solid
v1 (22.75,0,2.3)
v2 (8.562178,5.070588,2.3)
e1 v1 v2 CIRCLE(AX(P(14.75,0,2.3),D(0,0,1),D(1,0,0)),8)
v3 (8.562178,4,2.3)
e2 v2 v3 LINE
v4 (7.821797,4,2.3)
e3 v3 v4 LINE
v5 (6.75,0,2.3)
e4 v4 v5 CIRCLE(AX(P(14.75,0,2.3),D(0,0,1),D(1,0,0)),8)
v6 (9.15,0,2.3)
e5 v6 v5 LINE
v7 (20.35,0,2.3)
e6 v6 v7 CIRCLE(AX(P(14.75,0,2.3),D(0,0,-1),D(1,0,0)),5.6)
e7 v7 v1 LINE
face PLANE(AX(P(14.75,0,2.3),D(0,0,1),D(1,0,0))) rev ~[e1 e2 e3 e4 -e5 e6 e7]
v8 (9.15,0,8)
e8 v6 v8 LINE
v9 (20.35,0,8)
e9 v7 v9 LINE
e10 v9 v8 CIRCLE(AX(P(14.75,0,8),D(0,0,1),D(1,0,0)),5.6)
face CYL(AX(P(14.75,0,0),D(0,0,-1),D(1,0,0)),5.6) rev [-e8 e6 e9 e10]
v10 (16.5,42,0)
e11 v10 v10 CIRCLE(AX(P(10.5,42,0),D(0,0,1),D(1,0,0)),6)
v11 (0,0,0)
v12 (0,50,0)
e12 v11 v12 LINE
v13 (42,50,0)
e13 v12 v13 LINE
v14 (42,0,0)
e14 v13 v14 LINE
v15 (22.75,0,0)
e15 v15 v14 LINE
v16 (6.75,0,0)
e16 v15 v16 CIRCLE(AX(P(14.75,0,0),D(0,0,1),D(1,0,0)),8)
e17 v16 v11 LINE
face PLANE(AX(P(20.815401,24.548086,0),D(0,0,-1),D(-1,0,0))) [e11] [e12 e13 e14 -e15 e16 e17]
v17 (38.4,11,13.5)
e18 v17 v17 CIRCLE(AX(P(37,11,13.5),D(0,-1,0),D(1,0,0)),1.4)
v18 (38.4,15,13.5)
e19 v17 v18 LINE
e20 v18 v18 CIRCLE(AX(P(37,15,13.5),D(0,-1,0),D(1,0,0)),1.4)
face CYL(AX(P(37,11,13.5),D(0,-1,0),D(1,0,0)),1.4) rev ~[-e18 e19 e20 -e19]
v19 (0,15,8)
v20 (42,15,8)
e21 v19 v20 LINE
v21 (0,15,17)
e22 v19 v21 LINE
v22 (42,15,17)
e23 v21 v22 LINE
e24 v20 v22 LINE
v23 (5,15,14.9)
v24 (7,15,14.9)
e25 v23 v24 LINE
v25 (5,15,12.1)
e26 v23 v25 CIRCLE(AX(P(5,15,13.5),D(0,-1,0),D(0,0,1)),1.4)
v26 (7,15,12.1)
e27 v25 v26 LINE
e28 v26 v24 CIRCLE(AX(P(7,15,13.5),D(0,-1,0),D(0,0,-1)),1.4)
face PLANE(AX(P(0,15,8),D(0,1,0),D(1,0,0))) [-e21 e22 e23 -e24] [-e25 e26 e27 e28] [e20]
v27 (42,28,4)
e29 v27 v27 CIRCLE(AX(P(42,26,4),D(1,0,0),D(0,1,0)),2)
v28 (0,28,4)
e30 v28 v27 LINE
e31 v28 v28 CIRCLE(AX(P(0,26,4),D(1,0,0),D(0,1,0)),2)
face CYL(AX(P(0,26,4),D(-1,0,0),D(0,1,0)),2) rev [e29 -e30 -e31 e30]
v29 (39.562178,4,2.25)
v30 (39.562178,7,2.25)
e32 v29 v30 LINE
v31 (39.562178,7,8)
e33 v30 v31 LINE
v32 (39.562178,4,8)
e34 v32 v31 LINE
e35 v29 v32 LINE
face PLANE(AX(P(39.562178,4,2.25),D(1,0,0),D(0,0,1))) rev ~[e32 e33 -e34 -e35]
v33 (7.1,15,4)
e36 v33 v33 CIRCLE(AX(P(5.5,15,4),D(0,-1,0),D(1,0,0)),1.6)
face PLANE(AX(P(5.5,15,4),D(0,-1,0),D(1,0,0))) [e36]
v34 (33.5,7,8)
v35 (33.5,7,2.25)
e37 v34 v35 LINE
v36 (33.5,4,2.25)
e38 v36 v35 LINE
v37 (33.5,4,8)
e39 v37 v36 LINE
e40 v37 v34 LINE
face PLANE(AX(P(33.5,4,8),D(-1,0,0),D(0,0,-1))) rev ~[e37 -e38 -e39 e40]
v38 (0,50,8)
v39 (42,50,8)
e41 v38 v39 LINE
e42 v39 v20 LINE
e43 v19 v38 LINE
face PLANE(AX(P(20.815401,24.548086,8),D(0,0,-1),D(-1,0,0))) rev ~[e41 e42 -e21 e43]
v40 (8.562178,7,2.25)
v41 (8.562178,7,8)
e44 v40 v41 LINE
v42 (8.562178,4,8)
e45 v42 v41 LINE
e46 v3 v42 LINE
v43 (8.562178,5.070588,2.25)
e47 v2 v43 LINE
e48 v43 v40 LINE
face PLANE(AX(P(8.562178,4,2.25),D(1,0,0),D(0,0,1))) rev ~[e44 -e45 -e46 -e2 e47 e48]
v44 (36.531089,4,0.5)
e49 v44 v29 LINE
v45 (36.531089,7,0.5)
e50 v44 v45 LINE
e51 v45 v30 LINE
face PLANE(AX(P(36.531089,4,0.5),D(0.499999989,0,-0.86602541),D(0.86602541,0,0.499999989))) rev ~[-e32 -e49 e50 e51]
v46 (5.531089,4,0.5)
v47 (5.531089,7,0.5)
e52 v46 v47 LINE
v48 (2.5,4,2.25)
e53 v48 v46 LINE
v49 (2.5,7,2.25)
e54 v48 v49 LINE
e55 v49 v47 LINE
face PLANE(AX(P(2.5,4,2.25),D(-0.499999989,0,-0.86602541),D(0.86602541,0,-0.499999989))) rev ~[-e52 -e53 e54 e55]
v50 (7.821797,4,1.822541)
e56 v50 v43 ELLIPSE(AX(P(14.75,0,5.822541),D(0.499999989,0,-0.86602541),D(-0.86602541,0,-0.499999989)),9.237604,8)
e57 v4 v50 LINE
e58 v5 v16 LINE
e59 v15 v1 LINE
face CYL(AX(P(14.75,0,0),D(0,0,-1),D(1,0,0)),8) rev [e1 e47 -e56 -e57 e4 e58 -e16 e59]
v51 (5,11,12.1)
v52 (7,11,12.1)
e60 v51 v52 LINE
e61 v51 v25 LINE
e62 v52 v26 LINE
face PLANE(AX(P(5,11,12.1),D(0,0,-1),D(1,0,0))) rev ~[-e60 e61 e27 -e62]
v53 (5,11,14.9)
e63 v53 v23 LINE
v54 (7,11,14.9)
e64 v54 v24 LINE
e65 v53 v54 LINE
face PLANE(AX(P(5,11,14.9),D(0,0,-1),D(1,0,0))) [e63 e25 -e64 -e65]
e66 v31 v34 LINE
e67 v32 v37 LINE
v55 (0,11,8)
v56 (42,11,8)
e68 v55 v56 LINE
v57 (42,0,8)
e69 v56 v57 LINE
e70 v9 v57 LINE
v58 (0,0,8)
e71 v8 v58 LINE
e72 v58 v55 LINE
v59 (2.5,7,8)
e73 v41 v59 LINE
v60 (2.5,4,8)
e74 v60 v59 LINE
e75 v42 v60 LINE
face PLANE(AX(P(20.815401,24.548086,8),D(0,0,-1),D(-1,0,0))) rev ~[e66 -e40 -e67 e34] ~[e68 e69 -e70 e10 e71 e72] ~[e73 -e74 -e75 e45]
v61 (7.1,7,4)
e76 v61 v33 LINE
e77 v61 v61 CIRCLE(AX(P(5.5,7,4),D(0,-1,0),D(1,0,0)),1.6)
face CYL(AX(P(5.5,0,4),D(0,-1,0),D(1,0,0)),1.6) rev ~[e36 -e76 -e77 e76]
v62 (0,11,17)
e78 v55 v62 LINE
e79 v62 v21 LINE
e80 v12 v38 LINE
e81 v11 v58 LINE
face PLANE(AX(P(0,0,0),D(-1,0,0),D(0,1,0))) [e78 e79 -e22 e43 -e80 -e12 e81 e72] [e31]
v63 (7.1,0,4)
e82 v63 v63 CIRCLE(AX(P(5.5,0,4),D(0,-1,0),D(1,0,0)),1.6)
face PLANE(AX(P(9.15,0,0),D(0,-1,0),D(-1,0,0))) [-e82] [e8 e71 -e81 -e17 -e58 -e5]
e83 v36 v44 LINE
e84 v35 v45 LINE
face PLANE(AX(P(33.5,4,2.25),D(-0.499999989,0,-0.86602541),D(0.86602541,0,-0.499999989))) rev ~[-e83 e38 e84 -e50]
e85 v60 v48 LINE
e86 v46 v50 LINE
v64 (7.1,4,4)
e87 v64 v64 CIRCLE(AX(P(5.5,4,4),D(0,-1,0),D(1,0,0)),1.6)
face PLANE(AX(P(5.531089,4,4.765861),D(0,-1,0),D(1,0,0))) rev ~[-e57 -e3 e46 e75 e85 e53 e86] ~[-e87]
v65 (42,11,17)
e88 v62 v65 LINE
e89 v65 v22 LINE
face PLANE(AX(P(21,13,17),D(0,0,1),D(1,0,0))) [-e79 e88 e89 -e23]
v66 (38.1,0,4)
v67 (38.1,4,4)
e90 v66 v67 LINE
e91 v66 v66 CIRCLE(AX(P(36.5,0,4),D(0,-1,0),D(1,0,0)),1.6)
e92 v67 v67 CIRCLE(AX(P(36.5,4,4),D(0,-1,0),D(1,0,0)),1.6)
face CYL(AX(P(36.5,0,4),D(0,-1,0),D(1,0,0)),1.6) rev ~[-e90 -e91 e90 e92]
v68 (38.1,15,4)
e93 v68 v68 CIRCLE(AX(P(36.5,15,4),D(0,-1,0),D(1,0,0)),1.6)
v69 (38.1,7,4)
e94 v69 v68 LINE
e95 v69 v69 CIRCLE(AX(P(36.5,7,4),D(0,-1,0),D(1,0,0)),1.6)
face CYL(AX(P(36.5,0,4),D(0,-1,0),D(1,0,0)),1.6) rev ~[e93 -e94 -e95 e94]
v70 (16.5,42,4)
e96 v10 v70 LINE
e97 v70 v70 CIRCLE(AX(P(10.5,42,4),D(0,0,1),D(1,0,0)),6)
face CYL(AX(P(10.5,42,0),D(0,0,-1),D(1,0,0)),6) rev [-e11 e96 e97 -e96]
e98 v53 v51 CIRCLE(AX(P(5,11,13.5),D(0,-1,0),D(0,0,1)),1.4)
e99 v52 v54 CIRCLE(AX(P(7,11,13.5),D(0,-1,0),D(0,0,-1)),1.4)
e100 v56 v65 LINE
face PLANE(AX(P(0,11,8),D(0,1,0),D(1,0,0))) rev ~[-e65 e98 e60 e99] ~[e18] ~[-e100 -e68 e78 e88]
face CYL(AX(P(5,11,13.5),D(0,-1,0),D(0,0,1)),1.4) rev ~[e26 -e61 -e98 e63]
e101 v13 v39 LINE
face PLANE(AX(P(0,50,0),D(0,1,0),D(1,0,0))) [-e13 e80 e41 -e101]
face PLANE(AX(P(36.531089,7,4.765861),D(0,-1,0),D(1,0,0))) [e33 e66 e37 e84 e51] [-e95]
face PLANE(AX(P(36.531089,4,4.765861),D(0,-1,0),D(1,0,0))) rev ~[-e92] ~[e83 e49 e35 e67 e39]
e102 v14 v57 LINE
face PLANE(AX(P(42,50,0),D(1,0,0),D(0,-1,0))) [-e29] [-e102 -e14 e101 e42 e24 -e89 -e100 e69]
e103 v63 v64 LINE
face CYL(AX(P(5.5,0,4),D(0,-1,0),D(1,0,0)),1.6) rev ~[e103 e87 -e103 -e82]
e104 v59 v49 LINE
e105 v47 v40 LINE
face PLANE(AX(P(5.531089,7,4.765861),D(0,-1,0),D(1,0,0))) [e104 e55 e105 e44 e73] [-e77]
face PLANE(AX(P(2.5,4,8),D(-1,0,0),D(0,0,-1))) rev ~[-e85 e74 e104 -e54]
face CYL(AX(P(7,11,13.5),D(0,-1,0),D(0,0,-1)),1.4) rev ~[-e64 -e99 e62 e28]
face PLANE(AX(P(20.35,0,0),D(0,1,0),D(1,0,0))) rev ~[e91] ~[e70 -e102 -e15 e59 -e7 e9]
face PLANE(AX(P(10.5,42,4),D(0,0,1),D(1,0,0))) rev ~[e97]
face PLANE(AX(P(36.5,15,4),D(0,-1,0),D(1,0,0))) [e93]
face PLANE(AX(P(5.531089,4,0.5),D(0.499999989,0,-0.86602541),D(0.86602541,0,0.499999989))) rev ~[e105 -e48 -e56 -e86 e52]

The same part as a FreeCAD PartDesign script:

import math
import FreeCAD as App
import Part
import Sketcher
from FreeCAD import Vector
Q = App.Units.Quantity

doc = App.newDocument("Part")
body = doc.addObject("PartDesign::Body", "Body")
body.AllowCompound = True

sketch1 = body.newObject("Sketcher::SketchObject", "Sketch")
sketch1.AttachmentSupport = (doc.getObject("XZ_Plane"), [""])
sketch1.MapMode = "FlatFace"
sketch1.AttachmentOffset = App.Placement(Vector(0, 0, -4), App.Rotation())
sketch1.addGeometry([
    Part.LineSegment(Vector(5.531089, 0.5, 0), Vector(8.562178, 2.25, 0)),
    Part.LineSegment(Vector(8.562178, 2.25, 0), Vector(8.562178, 8, 0)),
    Part.LineSegment(Vector(8.562178, 8, 0), Vector(2.5, 8, 0)),
    Part.LineSegment(Vector(2.5, 8, 0), Vector(2.5, 2.25, 0)),
    Part.LineSegment(Vector(2.5, 2.25, 0), Vector(5.531089, 0.5, 0)),
    Part.LineSegment(Vector(39.562178, 2.25, 0), Vector(39.562178, 8, 0)),
    Part.LineSegment(Vector(39.562178, 8, 0), Vector(33.5, 8, 0)),
    Part.LineSegment(Vector(33.5, 8, 0), Vector(33.5, 2.25, 0)),
    Part.LineSegment(Vector(33.5, 2.25, 0), Vector(36.531089, 0.5, 0)),
    Part.LineSegment(Vector(36.531089, 0.5, 0), Vector(39.562178, 2.25, 0)),
], False)
sketch1.addConstraint([
    Sketcher.Constraint("Coincident", 0, 2, 1, 1),
    Sketcher.Constraint("Coincident", 1, 2, 2, 1),
    Sketcher.Constraint("Coincident", 2, 2, 3, 1),
    Sketcher.Constraint("Coincident", 3, 2, 4, 1),
    Sketcher.Constraint("Coincident", 4, 2, 0, 1),
    Sketcher.Constraint("Coincident", 5, 2, 6, 1),
    Sketcher.Constraint("Coincident", 6, 2, 7, 1),
    Sketcher.Constraint("Coincident", 7, 2, 8, 1),
    Sketcher.Constraint("Coincident", 8, 2, 9, 1),
    Sketcher.Constraint("Coincident", 9, 2, 5, 1),
    Sketcher.Constraint("Vertical", 1),
    Sketcher.Constraint("Horizontal", 2),
    Sketcher.Constraint("Vertical", 3),
    Sketcher.Constraint("Vertical", 5),
    Sketcher.Constraint("Horizontal", 6),
    Sketcher.Constraint("Vertical", 7),
    Sketcher.Constraint("Parallel", 4, 8),
    Sketcher.Constraint("Parallel", 0, 9),
    Sketcher.Constraint("Horizontal", 0, 2, 3, 2),
    Sketcher.Constraint("Horizontal", 2, 2, 5, 2),
    Sketcher.Constraint("Horizontal", 3, 2, 7, 2),
    Sketcher.Constraint("Horizontal", 4, 2, 8, 2),
    Sketcher.Constraint("Horizontal", 7, 2, 9, 2),
    Sketcher.Constraint("Equal", 0, 4),
    Sketcher.Constraint("Angle", 0, Q("29.999999 deg")),
    Sketcher.Constraint("DistanceY", -1, 1, 1, 2, Q("8 mm")),
    Sketcher.Constraint("DistanceX", 1, 2, 5, 2, Q("31 mm")),
    Sketcher.Constraint("Distance", 0, Q("3.5 mm")),
    Sketcher.Constraint("DistanceY", 1, 1, 1, 2, Q("5.75 mm")),
    Sketcher.Constraint("DistanceX", -1, 1, 2, 2, Q("2.5 mm")),
])
pad1 = body.newObject("PartDesign::Pad", "Pad")
pad1.Profile = sketch1
pad1.Length = 3
pad1.Reversed = True
body2 = doc.addObject("PartDesign::Body", "Body001")

sketch2 = body2.newObject("Sketcher::SketchObject", "Sketch001")
sketch2.AttachmentSupport = (doc.getObject("XY_Plane001"), [""])
sketch2.MapMode = "FlatFace"
sketch2.addGeometry(Part.Circle(Vector(14.75, 0, 0), Vector(0, 0, 1), 8), False)
sketch2.addConstraint([
    Sketcher.Constraint("PointOnObject", 0, 3, -1),
    Sketcher.Constraint("Diameter", 0, Q("16 mm")),
    Sketcher.Constraint("DistanceX", -1, 1, 0, 3, Q("14.75 mm")),
])
pad2 = body2.newObject("PartDesign::Pad", "Pad001")
pad2.Profile = sketch2
pad2.Length = 2.3
body3 = doc.addObject("PartDesign::Body", "Body002")

sketch3 = body3.newObject("Sketcher::SketchObject", "Sketch002")
sketch3.AttachmentSupport = (doc.getObject("XY_Plane002"), [""])
sketch3.MapMode = "FlatFace"
sketch3.addGeometry(Part.Circle(Vector(10.5, 42, 0), Vector(0, 0, 1), 6), False)
sketch3.addConstraint([
    Sketcher.Constraint("Diameter", 0, Q("12 mm")),
    Sketcher.Constraint("DistanceY", -1, 1, 0, 3, Q("42 mm")),
    Sketcher.Constraint("DistanceX", -1, 1, 0, 3, Q("10.5 mm")),
])
pad3 = body3.newObject("PartDesign::Pad", "Pad002")
pad3.Profile = sketch3
pad3.Length = 4
body4 = doc.addObject("PartDesign::Body", "Body003")
body4.AllowCompound = True

sketch4 = body4.newObject("Sketcher::SketchObject", "Sketch003")
sketch4.AttachmentSupport = (doc.getObject("XZ_Plane003"), [""])
sketch4.MapMode = "FlatFace"
sketch4.addGeometry([
    Part.Circle(Vector(5.5, 4, 0), Vector(0, 0, 1), 1.6),
    Part.Circle(Vector(36.5, 4, 0), Vector(0, 0, 1), 1.6),
], False)
sketch4.addConstraint([
    Sketcher.Constraint("Equal", 0, 1),
    Sketcher.Constraint("Horizontal", 0, 3, 1, 3),
    Sketcher.Constraint("Diameter", 0, Q("3.2 mm")),
    Sketcher.Constraint("DistanceY", -1, 1, 0, 3, Q("4 mm")),
    Sketcher.Constraint("DistanceX", 0, 3, 1, 3, Q("31 mm")),
    Sketcher.Constraint("DistanceX", -1, 1, 0, 3, Q("5.5 mm")),
])
pad4 = body4.newObject("PartDesign::Pad", "Pad003")
pad4.Profile = sketch4
pad4.Length = 15
pad4.Reversed = True
body5 = doc.addObject("PartDesign::Body", "Body004")
body5.AllowCompound = True

sketch5 = body5.newObject("Sketcher::SketchObject", "Sketch004")
sketch5.AttachmentSupport = (doc.getObject("XZ_Plane004"), [""])
sketch5.MapMode = "FlatFace"
sketch5.AttachmentOffset = App.Placement(Vector(0, 0, -11), App.Rotation())
sketch5.addGeometry([
    Part.Circle(Vector(37, 13.5, 0), Vector(0, 0, 1), 1.4),
    Part.ArcOfCircle(Part.Circle(Vector(5, 13.5, 0), Vector(0, 0, 1), 1.4), math.radians(90), math.radians(270)),
    Part.LineSegment(Vector(5, 12.1, 0), Vector(7, 12.1, 0)),
    Part.ArcOfCircle(Part.Circle(Vector(7, 13.5, 0), Vector(0, 0, 1), 1.4), math.radians(-90), math.radians(90)),
    Part.LineSegment(Vector(7, 14.9, 0), Vector(5, 14.9, 0)),
], False)
sketch5.addConstraint([
    Sketcher.Constraint("Tangent", 1, 2, 2, 1),
    Sketcher.Constraint("Tangent", 2, 2, 3, 1),
    Sketcher.Constraint("Tangent", 3, 2, 4, 1),
    Sketcher.Constraint("Tangent", 4, 2, 1, 1),
    Sketcher.Constraint("Horizontal", 2),
    Sketcher.Constraint("Horizontal", 4),
    Sketcher.Constraint("Equal", 0, 1),
    Sketcher.Constraint("Horizontal", 0, 3, 1, 3),
    Sketcher.Constraint("Diameter", 0, Q("2.8 mm")),
    Sketcher.Constraint("DistanceX", 2, 1, 2, 2, Q("2 mm")),
    Sketcher.Constraint("DistanceX", -1, 1, 0, 3, Q("37 mm")),
    Sketcher.Constraint("DistanceX", -1, 1, 1, 3, Q("5 mm")),
    Sketcher.Constraint("DistanceY", -1, 1, 0, 3, Q("13.5 mm")),
])
pad5 = body5.newObject("PartDesign::Pad", "Pad004")
pad5.Profile = sketch5
pad5.Length = 4
pad5.Reversed = True
doc.recompute()

boolean = body5.newObject("PartDesign::Boolean", "Boolean")
boolean.Type = "Fuse"
boolean.addObjects([body])
doc.recompute()

boolean2 = body5.newObject("PartDesign::Boolean", "Boolean001")
boolean2.Type = "Fuse"
boolean2.addObjects([body2])
doc.recompute()

boolean3 = body5.newObject("PartDesign::Boolean", "Boolean002")
boolean3.Type = "Fuse"
boolean3.addObjects([body3])
doc.recompute()

boolean4 = body5.newObject("PartDesign::Boolean", "Boolean003")
boolean4.Type = "Fuse"
boolean4.addObjects([body4])
body6 = doc.addObject("PartDesign::Body", "Body005")

sketch6 = body6.newObject("Sketcher::SketchObject", "Sketch005")
sketch6.AttachmentSupport = (doc.getObject("XY_Plane005"), [""])
sketch6.MapMode = "FlatFace"
sketch6.AttachmentOffset = App.Placement(Vector(0, 0, 8), App.Rotation())
sketch6.addGeometry([
    Part.LineSegment(Vector(0, 15, 0), Vector(0, 11, 0)),
    Part.LineSegment(Vector(0, 11, 0), Vector(42, 11, 0)),
    Part.LineSegment(Vector(42, 11, 0), Vector(42, 15, 0)),
    Part.LineSegment(Vector(42, 15, 0), Vector(0, 15, 0)),
], False)
sketch6.addConstraint([
    Sketcher.Constraint("Coincident", 0, 2, 1, 1),
    Sketcher.Constraint("Coincident", 1, 2, 2, 1),
    Sketcher.Constraint("Coincident", 2, 2, 3, 1),
    Sketcher.Constraint("Coincident", 3, 2, 0, 1),
    Sketcher.Constraint("Vertical", 0),
    Sketcher.Constraint("Horizontal", 1),
    Sketcher.Constraint("Vertical", 2),
    Sketcher.Constraint("Horizontal", 3),
    Sketcher.Constraint("PointOnObject", 0, 2, -2),
    Sketcher.Constraint("DistanceX", 1, 1, 1, 2, Q("42 mm")),
    Sketcher.Constraint("DistanceY", 0, 2, 0, 1, Q("4 mm")),
    Sketcher.Constraint("DistanceY", -1, 1, 0, 2, Q("11 mm")),
])
pad6 = body6.newObject("PartDesign::Pad", "Pad005")
pad6.Profile = sketch6
pad6.Length = 9
body7 = doc.addObject("PartDesign::Body", "Body006")

sketch7 = body7.newObject("Sketcher::SketchObject", "Sketch006")
sketch7.AttachmentSupport = (doc.getObject("YZ_Plane006"), [""])
sketch7.MapMode = "FlatFace"
sketch7.addGeometry(Part.Circle(Vector(26, 4, 0), Vector(0, 0, 1), 2), False)
sketch7.addConstraint([
    Sketcher.Constraint("Diameter", 0, Q("4 mm")),
    Sketcher.Constraint("DistanceX", -1, 1, 0, 3, Q("26 mm")),
    Sketcher.Constraint("DistanceY", -1, 1, 0, 3, Q("4 mm")),
])
pad7 = body7.newObject("PartDesign::Pad", "Pad006")
pad7.Profile = sketch7
pad7.Length = 42
body8 = doc.addObject("PartDesign::Body", "Body007")

sketch8 = body8.newObject("Sketcher::SketchObject", "Sketch007")
sketch8.AttachmentSupport = (doc.getObject("XY_Plane007"), [""])
sketch8.MapMode = "FlatFace"
sketch8.addGeometry([
    Part.LineSegment(Vector(42, 50, 0), Vector(0, 50, 0)),
    Part.LineSegment(Vector(0, 50, 0), Vector(0, 0, 0)),
    Part.LineSegment(Vector(0, 0, 0), Vector(9.15, 0, 0)),
    Part.ArcOfCircle(Part.Circle(Vector(14.75, 0, 0), Vector(0, 0, 1), 5.6), math.radians(0), math.radians(180)),
    Part.LineSegment(Vector(20.35, 0, 0), Vector(42, 0, 0)),
    Part.LineSegment(Vector(42, 0, 0), Vector(42, 50, 0)),
], False)
sketch8.addConstraint([
    Sketcher.Constraint("Coincident", 0, 2, 1, 1),
    Sketcher.Constraint("Coincident", 1, 2, 2, 1),
    Sketcher.Constraint("Coincident", 2, 2, 3, 2),
    Sketcher.Constraint("Coincident", 3, 1, 4, 1),
    Sketcher.Constraint("Coincident", 4, 2, 5, 1),
    Sketcher.Constraint("Coincident", 5, 2, 0, 1),
    Sketcher.Constraint("Horizontal", 0),
    Sketcher.Constraint("Vertical", 1),
    Sketcher.Constraint("Horizontal", 2),
    Sketcher.Constraint("Horizontal", 4),
    Sketcher.Constraint("Vertical", 5),
    Sketcher.Constraint("Coincident", 1, 2, -1, 1),
    Sketcher.Constraint("PointOnObject", 3, 3, -1),
    Sketcher.Constraint("PointOnObject", 3, 1, -1),
    Sketcher.Constraint("Radius", 3, Q("5.6 mm")),
    Sketcher.Constraint("DistanceX", 0, 2, 0, 1, Q("42 mm")),
    Sketcher.Constraint("DistanceY", 1, 2, 1, 1, Q("50 mm")),
    Sketcher.Constraint("DistanceX", 2, 1, 2, 2, Q("9.15 mm")),
])
pad8 = body8.newObject("PartDesign::Pad", "Pad007")
pad8.Profile = sketch8
pad8.Length = 8
doc.recompute()

boolean5 = body8.newObject("PartDesign::Boolean", "Boolean004")
boolean5.Type = "Cut"
boolean5.addObjects([body7])
doc.recompute()

boolean6 = body8.newObject("PartDesign::Boolean", "Boolean005")
boolean6.Type = "Fuse"
boolean6.addObjects([body6])
doc.recompute()

boolean7 = body8.newObject("PartDesign::Boolean", "Boolean006")
boolean7.Type = "Cut"
boolean7.addObjects([body5])

doc.recompute()
